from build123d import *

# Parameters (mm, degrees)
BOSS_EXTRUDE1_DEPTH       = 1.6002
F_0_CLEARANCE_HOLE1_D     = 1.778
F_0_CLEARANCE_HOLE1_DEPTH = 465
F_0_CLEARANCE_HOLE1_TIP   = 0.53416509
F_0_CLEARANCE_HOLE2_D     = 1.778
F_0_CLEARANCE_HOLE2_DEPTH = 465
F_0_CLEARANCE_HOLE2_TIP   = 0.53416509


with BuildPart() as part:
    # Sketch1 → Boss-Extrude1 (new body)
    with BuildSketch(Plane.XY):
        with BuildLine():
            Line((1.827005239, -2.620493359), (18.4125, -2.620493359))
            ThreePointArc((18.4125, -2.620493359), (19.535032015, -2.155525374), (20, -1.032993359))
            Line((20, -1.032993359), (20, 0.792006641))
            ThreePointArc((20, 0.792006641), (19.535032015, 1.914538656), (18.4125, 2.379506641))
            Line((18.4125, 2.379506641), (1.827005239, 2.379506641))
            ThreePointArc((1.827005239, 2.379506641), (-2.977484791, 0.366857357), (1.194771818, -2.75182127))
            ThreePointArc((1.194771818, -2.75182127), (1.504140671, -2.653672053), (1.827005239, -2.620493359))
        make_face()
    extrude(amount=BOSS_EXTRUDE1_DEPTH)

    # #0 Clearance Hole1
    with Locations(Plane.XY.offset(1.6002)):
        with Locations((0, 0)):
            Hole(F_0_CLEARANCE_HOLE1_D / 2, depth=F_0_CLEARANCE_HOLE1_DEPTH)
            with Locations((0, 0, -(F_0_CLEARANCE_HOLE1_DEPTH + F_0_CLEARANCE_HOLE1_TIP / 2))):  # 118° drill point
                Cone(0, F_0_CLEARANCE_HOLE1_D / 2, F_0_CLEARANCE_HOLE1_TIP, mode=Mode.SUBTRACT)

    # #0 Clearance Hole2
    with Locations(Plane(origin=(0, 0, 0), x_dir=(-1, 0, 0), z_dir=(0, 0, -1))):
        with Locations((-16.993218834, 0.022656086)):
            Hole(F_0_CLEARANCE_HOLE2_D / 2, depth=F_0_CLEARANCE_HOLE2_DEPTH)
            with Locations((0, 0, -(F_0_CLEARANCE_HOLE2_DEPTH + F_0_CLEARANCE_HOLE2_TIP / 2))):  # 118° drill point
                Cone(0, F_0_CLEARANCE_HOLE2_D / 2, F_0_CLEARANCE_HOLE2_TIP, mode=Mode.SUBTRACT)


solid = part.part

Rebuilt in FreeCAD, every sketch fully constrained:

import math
import FreeCAD as App
import Part
import Sketcher

V = App.Vector
Q = App.Units.Quantity

doc = App.newDocument("Part")
params = doc.addObject("Spreadsheet::Sheet", "Params")
for row, (alias, value) in enumerate([
    ("sketch1_radius", "0.0625 in"),
    ("pad1_length", "0.063 in"),
    ("sketch2_diameter", "0.07 in"),
    ("hole_diameter", "0.07 in"),
    ("hole_depth", "465 mm"),
    ("sketch3_diameter", "0.07 in"),
    ("hole2_diameter", "0.07 in"),
    ("hole2_depth", "465 mm"),
], start=1):
    params.set(f"A{row}", alias)
    params.set(f"B{row}", "=" + value)
    params.setAlias(f"B{row}", alias)

body = doc.addObject("PartDesign::Body", "Body")

# Sketch on XY plane
sketch1 = doc.addObject("Sketcher::SketchObject", "Sketch")
body.addObject(sketch1)
sketch1.AttachmentSupport = (doc.XY_Plane, [""])
sketch1.MapMode = "FlatFace"
sketch1.addGeometry([
    Part.LineSegment(V(1.8, -2.6, 0), V(18.4, -2.6, 0)),  # 0
    Part.ArcOfCircle(Part.Circle(V(18.4, -1, 0), V(0, 0, 1), 1.6), math.radians(-90), math.radians(0)),  # 1
    Part.LineSegment(V(20, -1, 0), V(20, 0.8, 0)),  # 2
    Part.ArcOfCircle(Part.Circle(V(18.4, 0.8, 0), V(0, 0, 1), 1.6), math.radians(0), math.radians(90)),  # 3
    Part.LineSegment(V(18.4, 2.4, 0), V(1.8, 2.4, 0)),  # 4
    Part.ArcOfCircle(Part.Circle(V(0, 0, 0), V(0, 0, 1), 3), math.radians(52), math.radians(293)),  # 5
    Part.ArcOfCircle(Part.Circle(V(1.8, -4.2, 0), V(0, 0, 1), 1.6), math.radians(90), math.radians(113)),  # 6
], False)
sketch1.addConstraint([
    Sketcher.Constraint("Tangent", 0, 2, 1, 1),
    Sketcher.Constraint("Tangent", 1, 2, 2, 1),
    Sketcher.Constraint("Tangent", 2, 2, 3, 1),
    Sketcher.Constraint("Tangent", 3, 2, 4, 1),
    Sketcher.Constraint("Coincident", 4, 2, 5, 1),
    Sketcher.Constraint("Tangent", 5, 2, 6, 2),
    Sketcher.Constraint("Tangent", 6, 1, 0, 1),
    Sketcher.Constraint("Horizontal", 0),
    Sketcher.Constraint("Vertical", 2),
    Sketcher.Constraint("Horizontal", 4),
    Sketcher.Constraint("Coincident", 5, 3, -1, 1),
    Sketcher.Constraint("Equal", 1, 3),
    Sketcher.Constraint("Equal", 3, 6),
    Sketcher.Constraint("Vertical", 6, 3, 4, 2),
    Sketcher.Constraint("Radius", 1, Q("0.0625 in")),
    Sketcher.Constraint("Radius", 5, Q("3 mm")),
    Sketcher.Constraint("DistanceY", 2, 1, 2, 2, Q("1.825 mm")),
    Sketcher.Constraint("DistanceX", -1, 1, 1, 3, Q("18.4125 mm")),
])
sketch1.setExpression("Constraints[14]", "Params.sketch1_radius")
pad1 = doc.addObject("PartDesign::Pad", "Pad")
body.addObject(pad1)
pad1.Profile = sketch1
pad1.setExpression("Length", "Params.pad1_length")

# Sketch on XY plane
sketch2 = doc.addObject("Sketcher::SketchObject", "Sketch001")
body.addObject(sketch2)
sketch2.AttachmentSupport = (doc.XY_Plane, [""])
sketch2.MapMode = "FlatFace"
sketch2.AttachmentOffset = App.Placement(V(0, 0, 0.063 * 25.4), App.Rotation())
sketch2.addGeometry(Part.Circle(V(0, 0, 0), V(0, 0, 1), 0.9), False)
sketch2.addConstraint([
    Sketcher.Constraint("Coincident", 0, 3, -1, 1),
    Sketcher.Constraint("Diameter", 0, Q("0.07 in")),
])
sketch2.setExpression("Constraints[1]", "Params.sketch2_diameter")
doc.recompute()
hole = doc.addObject("PartDesign::Hole", "Hole")
body.addObject(hole)
hole.Profile = sketch2
hole.ThreadType = "None"
hole.setExpression("Diameter", "Params.hole_diameter")
hole.DepthType = "Dimension"
hole.setExpression("Depth", "Params.hole_depth")
hole.DrillPoint = "Angled"
hole.DrillPointAngle = 118

# Sketch on XY plane
sketch3 = doc.addObject("Sketcher::SketchObject", "Sketch002")
body.addObject(sketch3)
sketch3.AttachmentSupport = (doc.XY_Plane, [""])
sketch3.MapMode = "FlatFace"
sketch3.addGeometry(Part.Circle(V(17, 0, 0), V(0, 0, 1), 0.9), False)
sketch3.addConstraint([
    Sketcher.Constraint("Diameter", 0, Q("0.07 in")),
    Sketcher.Constraint("DistanceX", -1, 1, 0, 3, Q("16.993219 mm")),
    Sketcher.Constraint("DistanceY", -1, 1, 0, 3, Q("0.022656 mm")),
])
sketch3.setExpression("Constraints[0]", "Params.sketch3_diameter")
doc.recompute()
hole2 = doc.addObject("PartDesign::Hole", "Hole001")
body.addObject(hole2)
hole2.Profile = sketch3
hole2.ThreadType = "None"
hole2.setExpression("Diameter", "Params.hole2_diameter")
hole2.DepthType = "Dimension"
hole2.setExpression("Depth", "Params.hole2_depth")
hole2.DrillPoint = "Angled"
hole2.DrillPointAngle = 118
hole2.Reversed = True

doc.recompute()
